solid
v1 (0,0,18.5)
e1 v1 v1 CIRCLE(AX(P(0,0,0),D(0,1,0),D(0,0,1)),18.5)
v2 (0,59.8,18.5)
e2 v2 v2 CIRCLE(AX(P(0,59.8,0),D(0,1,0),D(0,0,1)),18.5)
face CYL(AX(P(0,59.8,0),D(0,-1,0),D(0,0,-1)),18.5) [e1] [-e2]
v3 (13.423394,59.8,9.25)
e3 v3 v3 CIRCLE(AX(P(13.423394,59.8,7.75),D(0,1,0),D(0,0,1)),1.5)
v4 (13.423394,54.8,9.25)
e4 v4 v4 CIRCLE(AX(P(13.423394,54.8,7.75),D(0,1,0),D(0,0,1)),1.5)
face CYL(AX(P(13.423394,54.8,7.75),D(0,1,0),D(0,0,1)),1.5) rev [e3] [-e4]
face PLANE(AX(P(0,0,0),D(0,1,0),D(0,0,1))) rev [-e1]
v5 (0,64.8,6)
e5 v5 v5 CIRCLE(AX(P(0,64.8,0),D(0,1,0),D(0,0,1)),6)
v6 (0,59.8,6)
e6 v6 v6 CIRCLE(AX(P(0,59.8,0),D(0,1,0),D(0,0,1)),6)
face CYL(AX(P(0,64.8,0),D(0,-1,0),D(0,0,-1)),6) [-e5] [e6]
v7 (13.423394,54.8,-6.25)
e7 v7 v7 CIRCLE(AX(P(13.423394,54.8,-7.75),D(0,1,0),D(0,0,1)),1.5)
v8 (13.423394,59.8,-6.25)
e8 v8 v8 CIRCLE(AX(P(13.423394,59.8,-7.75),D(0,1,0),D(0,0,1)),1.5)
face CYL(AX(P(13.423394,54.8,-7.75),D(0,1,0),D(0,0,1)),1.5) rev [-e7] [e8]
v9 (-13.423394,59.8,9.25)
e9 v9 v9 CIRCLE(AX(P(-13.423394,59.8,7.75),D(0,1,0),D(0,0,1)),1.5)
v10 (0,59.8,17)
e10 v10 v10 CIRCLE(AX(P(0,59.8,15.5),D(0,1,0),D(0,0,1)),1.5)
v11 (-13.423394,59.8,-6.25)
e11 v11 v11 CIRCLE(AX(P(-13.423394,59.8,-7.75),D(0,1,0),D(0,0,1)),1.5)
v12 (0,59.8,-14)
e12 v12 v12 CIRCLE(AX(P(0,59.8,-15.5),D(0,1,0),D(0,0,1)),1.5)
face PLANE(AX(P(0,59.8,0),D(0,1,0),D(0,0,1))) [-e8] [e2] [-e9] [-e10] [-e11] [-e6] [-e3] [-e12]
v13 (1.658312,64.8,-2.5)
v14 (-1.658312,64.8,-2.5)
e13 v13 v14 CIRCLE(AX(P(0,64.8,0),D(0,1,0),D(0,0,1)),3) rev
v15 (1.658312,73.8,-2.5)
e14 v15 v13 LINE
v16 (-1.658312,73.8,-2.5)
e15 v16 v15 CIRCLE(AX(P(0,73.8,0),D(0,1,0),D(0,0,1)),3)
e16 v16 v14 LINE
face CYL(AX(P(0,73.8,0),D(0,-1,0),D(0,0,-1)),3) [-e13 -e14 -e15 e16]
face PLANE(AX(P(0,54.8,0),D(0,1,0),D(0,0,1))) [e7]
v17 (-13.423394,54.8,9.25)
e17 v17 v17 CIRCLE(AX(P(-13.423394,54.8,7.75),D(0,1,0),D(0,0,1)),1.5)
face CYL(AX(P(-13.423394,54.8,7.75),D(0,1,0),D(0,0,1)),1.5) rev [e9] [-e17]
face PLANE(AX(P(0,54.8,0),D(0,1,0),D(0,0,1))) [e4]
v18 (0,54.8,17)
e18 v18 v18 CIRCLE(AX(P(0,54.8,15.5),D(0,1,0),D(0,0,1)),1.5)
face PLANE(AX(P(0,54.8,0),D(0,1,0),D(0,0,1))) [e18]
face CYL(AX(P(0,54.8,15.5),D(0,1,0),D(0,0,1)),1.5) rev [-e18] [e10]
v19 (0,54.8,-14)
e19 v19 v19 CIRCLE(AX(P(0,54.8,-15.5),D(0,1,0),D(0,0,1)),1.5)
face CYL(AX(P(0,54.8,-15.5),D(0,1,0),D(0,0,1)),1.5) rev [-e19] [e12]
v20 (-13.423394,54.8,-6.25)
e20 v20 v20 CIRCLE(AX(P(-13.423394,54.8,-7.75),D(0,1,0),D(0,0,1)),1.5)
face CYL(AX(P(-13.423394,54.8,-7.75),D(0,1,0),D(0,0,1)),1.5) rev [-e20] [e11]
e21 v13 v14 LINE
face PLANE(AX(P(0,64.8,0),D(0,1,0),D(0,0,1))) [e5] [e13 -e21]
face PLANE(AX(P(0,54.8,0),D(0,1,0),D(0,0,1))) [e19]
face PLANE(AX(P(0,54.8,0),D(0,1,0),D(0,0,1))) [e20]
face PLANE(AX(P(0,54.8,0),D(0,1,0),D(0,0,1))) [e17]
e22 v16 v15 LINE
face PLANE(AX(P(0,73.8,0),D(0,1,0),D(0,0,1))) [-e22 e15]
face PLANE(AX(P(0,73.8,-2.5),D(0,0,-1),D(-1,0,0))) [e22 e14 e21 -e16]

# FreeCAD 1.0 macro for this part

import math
import FreeCAD as App
import Part
import Sketcher

V = App.Vector

doc = App.newDocument("Part")
body = doc.addObject("PartDesign::Body", "Body")

# Sketch on XZ plane
sketch1 = body.newObject("Sketcher::SketchObject", "Sketch")
sketch1.AttachmentSupport = (doc.getObject("XZ_Plane"), [""])
sketch1.MapMode = "FlatFace"
sketch1.addGeometry(Part.Circle(V(0, 0, 0), V(0, 0, 1), 18), False)
sketch1.addConstraint(Sketcher.Constraint("Coincident", 0, 3, -1, 1))
sketch1.addConstraint(Sketcher.Constraint("Diameter", 0, 37.0))
pad1 = body.newObject("PartDesign::Pad", "Pad")
pad1.Profile = sketch1
pad1.Length = 59.8
pad1.Reversed = True

# Sketch on XZ plane
sketch2 = body.newObject("Sketcher::SketchObject", "Sketch001")
sketch2.AttachmentSupport = (doc.getObject("XZ_Plane"), [""])
sketch2.MapMode = "FlatFace"
sketch2.AttachmentOffset = App.Placement(V(0, 0, -59.8), App.Rotation())
sketch2.addGeometry(Part.Circle(V(0, 0, 0), V(0, 0, 1), 6), False)
sketch2.addConstraint(Sketcher.Constraint("Coincident", 0, 3, -1, 1))
sketch2.addConstraint(Sketcher.Constraint("Diameter", 0, 12.0))
pad2 = body.newObject("PartDesign::Pad", "Pad001")
pad2.Profile = sketch2
pad2.Length = 5
pad2.Reversed = True

# Sketch on XZ plane
sketch3 = body.newObject("Sketcher::SketchObject", "Sketch002")
sketch3.AttachmentSupport = (doc.getObject("XZ_Plane"), [""])
sketch3.MapMode = "FlatFace"
sketch3.AttachmentOffset = App.Placement(V(0, 0, -59.8), App.Rotation())
sketch3.addGeometry(Part.LineSegment(V(1.7, -2.5, 0), V(-1.7, -2.5, 0)), False)
sketch3.addGeometry(Part.ArcOfCircle(Part.Circle(V(0, 0, 0), V(0, 0, 1), 3), math.radians(0), math.radians(236)), False)
sketch3.addGeometry(Part.ArcOfCircle(Part.Circle(V(0, 0, 0), V(0, 0, 1), 3), math.radians(-56), math.radians(0)), False)
sketch3.addConstraint(Sketcher.Constraint("Coincident", 0, 2, 1, 2))
sketch3.addConstraint(Sketcher.Constraint("Tangent", 1, 1, 2, 2))
sketch3.addConstraint(Sketcher.Constraint("Coincident", 2, 1, 0, 1))
sketch3.addConstraint(Sketcher.Constraint("Horizontal", 0))
sketch3.addConstraint(Sketcher.Constraint("Coincident", 1, 3, -1, 1))
sketch3.addConstraint(Sketcher.Constraint("Equal", 1, 2))
sketch3.addConstraint(Sketcher.Constraint("PointOnObject", 1, 1, -1))
sketch3.addConstraint(Sketcher.Constraint("Radius", 1, 3.0))
sketch3.addConstraint(Sketcher.Constraint("DistanceY", 0, 2, -1, 1, 2.5))
pad3 = body.newObject("PartDesign::Pad", "Pad002")
pad3.Profile = sketch3
pad3.Length = 14
pad3.Reversed = True

# Sketch on XZ plane
sketch4 = body.newObject("Sketcher::SketchObject", "Sketch003")
sketch4.AttachmentSupport = (doc.getObject("XZ_Plane"), [""])
sketch4.MapMode = "FlatFace"
sketch4.AttachmentOffset = App.Placement(V(0, 0, -59.8), App.Rotation())
sketch4.addGeometry(Part.Circle(V(-13.4, -7.8, 0), V(0, 0, 1), 1.5), False)
sketch4.addGeometry(Part.Circle(V(0, -15.5, 0), V(0, 0, 1), 1.5), False)
sketch4.addGeometry(Part.Circle(V(13.4, -7.8, 0), V(0, 0, 1), 1.5), False)
sketch4.addGeometry(Part.Circle(V(13.4, 7.8, 0), V(0, 0, 1), 1.5), False)
sketch4.addGeometry(Part.Circle(V(0, 15.5, 0), V(0, 0, 1), 1.5), False)
sketch4.addGeometry(Part.Circle(V(-13.4, 7.8, 0), V(0, 0, 1), 1.5), False)
sketch4.addConstraint(Sketcher.Constraint("Equal", 0, 1))
sketch4.addConstraint(Sketcher.Constraint("Equal", 1, 2))
sketch4.addConstraint(Sketcher.Constraint("Equal", 2, 3))
sketch4.addConstraint(Sketcher.Constraint("Equal", 3, 4))
sketch4.addConstraint(Sketcher.Constraint("Equal", 4, 5))
sketch4.addConstraint(Sketcher.Constraint("Symmetric", 0, 3, 3, 3, -1, 1))
sketch4.addConstraint(Sketcher.Constraint("Symmetric", 1, 3, 4, 3, -1, 1))
sketch4.addConstraint(Sketcher.Constraint("Symmetric", 2, 3, 5, 3, -1, 1))
sketch4.addConstraint(Sketcher.Constraint("Symmetric", 0, 3, 2, 3, -2))
sketch4.addConstraint(Sketcher.Constraint("PointOnObject", 1, 3, -2))
sketch4.addConstraint(Sketcher.Constraint("Diameter", 0, 3.0))
sketch4.addConstraint(Sketcher.Constraint("DistanceY", 1, 3, 4, 3, 31.0))
sketch4.addConstraint(Sketcher.Constraint("DistanceY", 2, 3, 3, 3, 15.5))
sketch4.addConstraint(Sketcher.Constraint("DistanceX", 0, 3, -1, 1, 13.423394))
pocket1 = body.newObject("PartDesign::Pocket", "Pocket")
pocket1.Profile = sketch4
pocket1.Length = 5
pocket1.Reversed = True

doc.recompute()
